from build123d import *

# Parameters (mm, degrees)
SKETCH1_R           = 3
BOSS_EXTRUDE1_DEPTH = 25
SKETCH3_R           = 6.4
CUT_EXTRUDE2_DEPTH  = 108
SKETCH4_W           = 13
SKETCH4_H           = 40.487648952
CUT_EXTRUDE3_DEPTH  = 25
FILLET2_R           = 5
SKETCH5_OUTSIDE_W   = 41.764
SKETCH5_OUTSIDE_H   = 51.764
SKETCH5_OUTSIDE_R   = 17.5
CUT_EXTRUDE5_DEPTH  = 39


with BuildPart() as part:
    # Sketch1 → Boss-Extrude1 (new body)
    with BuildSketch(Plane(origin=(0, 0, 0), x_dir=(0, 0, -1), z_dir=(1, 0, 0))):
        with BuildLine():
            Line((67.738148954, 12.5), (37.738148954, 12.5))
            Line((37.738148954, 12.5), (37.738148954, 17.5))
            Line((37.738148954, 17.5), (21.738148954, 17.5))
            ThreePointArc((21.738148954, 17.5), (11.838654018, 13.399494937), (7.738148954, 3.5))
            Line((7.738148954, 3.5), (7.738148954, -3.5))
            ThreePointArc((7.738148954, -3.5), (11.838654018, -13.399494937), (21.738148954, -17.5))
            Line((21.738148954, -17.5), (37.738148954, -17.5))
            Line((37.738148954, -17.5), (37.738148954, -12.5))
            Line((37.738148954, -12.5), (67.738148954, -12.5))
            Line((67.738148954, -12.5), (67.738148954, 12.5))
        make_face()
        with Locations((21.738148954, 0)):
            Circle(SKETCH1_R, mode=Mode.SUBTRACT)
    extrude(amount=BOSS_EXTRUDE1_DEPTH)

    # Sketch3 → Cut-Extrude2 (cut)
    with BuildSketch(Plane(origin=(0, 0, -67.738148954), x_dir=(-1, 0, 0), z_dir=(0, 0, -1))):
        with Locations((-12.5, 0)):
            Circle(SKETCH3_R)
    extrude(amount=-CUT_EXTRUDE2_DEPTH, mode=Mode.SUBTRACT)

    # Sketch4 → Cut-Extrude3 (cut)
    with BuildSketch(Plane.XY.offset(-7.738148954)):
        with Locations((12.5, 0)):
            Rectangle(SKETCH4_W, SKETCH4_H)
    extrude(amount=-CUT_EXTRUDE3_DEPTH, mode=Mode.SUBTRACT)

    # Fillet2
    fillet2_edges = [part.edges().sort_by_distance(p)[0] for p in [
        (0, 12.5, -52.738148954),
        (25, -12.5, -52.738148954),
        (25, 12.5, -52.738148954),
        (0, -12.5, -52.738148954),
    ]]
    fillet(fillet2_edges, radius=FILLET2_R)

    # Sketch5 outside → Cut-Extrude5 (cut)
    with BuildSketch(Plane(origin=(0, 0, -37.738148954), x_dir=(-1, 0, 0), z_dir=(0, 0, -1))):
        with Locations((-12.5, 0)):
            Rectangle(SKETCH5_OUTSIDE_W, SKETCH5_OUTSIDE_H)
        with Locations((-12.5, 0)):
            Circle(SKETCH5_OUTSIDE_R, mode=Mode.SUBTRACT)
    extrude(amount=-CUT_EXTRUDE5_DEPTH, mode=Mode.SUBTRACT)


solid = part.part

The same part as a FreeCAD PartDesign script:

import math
import FreeCAD as App
import Part
import Sketcher
from FreeCAD import Vector
Q = App.Units.Quantity


def edges_at(feature, points):
    """Names of the edges that pass closest to the given points."""
    edges = feature.Shape.Edges
    near = lambda p: min(range(len(edges)), key=lambda i: edges[i].distToShape(Part.Vertex(*p))[0])
    return sorted({f"Edge{near(p) + 1}" for p in points})


def add_polygon(sketch, points):
    """Adds a closed chain of lines whose ends are joined by coincident constraints."""
    first, n = sketch.GeometryCount, len(points)
    for a, b in zip(points, points[1:] + points[:1]):
        sketch.addGeometry(Part.LineSegment(App.Vector(*a, 0), App.Vector(*b, 0)), False)
    for i in range(n):
        sketch.addConstraint(Sketcher.Constraint("Coincident", first + i, 2, first + (i + 1) % n, 1))

doc = App.newDocument("Part")
body = doc.addObject("PartDesign::Body", "Body")

sketch1 = body.newObject("Sketcher::SketchObject", "Sketch")
sketch1.AttachmentSupport = (doc.getObject("YZ_Plane"), [""])
sketch1.MapMode = "FlatFace"
sketch1.addGeometry([
    Part.LineSegment(Vector(12.5, -67.7, 0), Vector(12.5, -37.7, 0)),
    Part.LineSegment(Vector(12.5, -37.7, 0), Vector(17.5, -37.7, 0)),
    Part.LineSegment(Vector(17.5, -37.7, 0), Vector(17.5, -21.7, 0)),
    Part.ArcOfCircle(Part.Circle(Vector(3.5, -21.7, 0), Vector(0, 0, 1), 14), math.radians(0), math.radians(90)),
    Part.LineSegment(Vector(3.5, -7.7, 0), Vector(-3.5, -7.7, 0)),
    Part.ArcOfCircle(Part.Circle(Vector(-3.5, -21.7, 0), Vector(0, 0, 1), 14), math.radians(90), math.radians(180)),
    Part.LineSegment(Vector(-17.5, -21.7, 0), Vector(-17.5, -37.7, 0)),
    Part.LineSegment(Vector(-17.5, -37.7, 0), Vector(-12.5, -37.7, 0)),
    Part.LineSegment(Vector(-12.5, -37.7, 0), Vector(-12.5, -67.7, 0)),
    Part.LineSegment(Vector(-12.5, -67.7, 0), Vector(12.5, -67.7, 0)),
    Part.Circle(Vector(0, -21.7, 0), Vector(0, 0, 1), 3),
], False)
sketch1.addConstraint([
    Sketcher.Constraint("Coincident", 0, 2, 1, 1),
    Sketcher.Constraint("Coincident", 1, 2, 2, 1),
    Sketcher.Constraint("Tangent", 2, 2, 3, 1),
    Sketcher.Constraint("Tangent", 3, 2, 4, 1),
    Sketcher.Constraint("Tangent", 4, 2, 5, 1),
    Sketcher.Constraint("Tangent", 5, 2, 6, 1),
    Sketcher.Constraint("Coincident", 6, 2, 7, 1),
    Sketcher.Constraint("Coincident", 7, 2, 8, 1),
    Sketcher.Constraint("Coincident", 8, 2, 9, 1),
    Sketcher.Constraint("Coincident", 9, 2, 0, 1),
    Sketcher.Constraint("Vertical", 0),
    Sketcher.Constraint("Horizontal", 1),
    Sketcher.Constraint("Vertical", 2),
    Sketcher.Constraint("Horizontal", 4),
    Sketcher.Constraint("Vertical", 6),
    Sketcher.Constraint("Horizontal", 7),
    Sketcher.Constraint("Vertical", 8),
    Sketcher.Constraint("Horizontal", 9),
    Sketcher.Constraint("Equal", 3, 5),
    Sketcher.Constraint("Symmetric", 1, 2, 6, 2, -2),
    Sketcher.Constraint("PointOnObject", 10, 3, -2),
    Sketcher.Constraint("Horizontal", 5, 3, 10, 3),
    Sketcher.Constraint("Equal", 1, 7),
    Sketcher.Constraint("Diameter", 10, Q("6 mm")),
    Sketcher.Constraint("Radius", 3, Q("14 mm")),
    Sketcher.Constraint("DistanceX", 1, 1, 1, 2, Q("5 mm")),
    Sketcher.Constraint("DistanceX", 4, 2, 4, 1, Q("7 mm")),
    Sketcher.Constraint("DistanceY", 0, 1, 0, 2, Q("30 mm")),
    Sketcher.Constraint("DistanceY", 2, 1, 2, 2, Q("16 mm")),
    Sketcher.Constraint("DistanceY", 3, 3, -1, 1, Q("21.738149 mm")),
])
pad1 = body.newObject("PartDesign::Pad", "Pad")
pad1.Profile = sketch1
pad1.Length = 25

sketch2 = body.newObject("Sketcher::SketchObject", "Sketch001")
sketch2.AttachmentSupport = (doc.getObject("XY_Plane"), [""])
sketch2.MapMode = "FlatFace"
sketch2.AttachmentOffset = App.Placement(Vector(0, 0, -67.738149), App.Rotation())
sketch2.addGeometry(Part.Circle(Vector(12, 0, 0), Vector(0, 0, 1), 6), False)
sketch2.addConstraint([
    Sketcher.Constraint("PointOnObject", 0, 3, -1),
    Sketcher.Constraint("Diameter", 0, Q("12.8 mm")),
    Sketcher.Constraint("DistanceX", -1, 1, 0, 3, Q("12.5 mm")),
])
pocket1 = body.newObject("PartDesign::Pocket", "Pocket")
pocket1.Profile = sketch2
pocket1.Length = 108
pocket1.Reversed = True

sketch3 = body.newObject("Sketcher::SketchObject", "Sketch002")
sketch3.AttachmentSupport = (doc.getObject("XY_Plane"), [""])
sketch3.MapMode = "FlatFace"
sketch3.AttachmentOffset = App.Placement(Vector(0, 0, -7.738149), App.Rotation())
add_polygon(sketch3, [(6, 20), (6, -20), (19, -20), (19, 20)])
sketch3.addConstraint([
    Sketcher.Constraint("Vertical", 0),
    Sketcher.Constraint("Horizontal", 1),
    Sketcher.Constraint("Vertical", 2),
    Sketcher.Constraint("Horizontal", 3),
    Sketcher.Constraint("DistanceX", 1, 1, 1, 2, Q("13 mm")),
    Sketcher.Constraint("DistanceX", -1, 1, 0, 2, Q("6 mm")),
    Sketcher.Constraint("DistanceY", 0, 2, 0, 1, Q("40.487649 mm")),
    Sketcher.Constraint("DistanceY", 0, 2, -1, 1, Q("20.243824 mm")),
])
pocket2 = body.newObject("PartDesign::Pocket", "Pocket001")
pocket2.Profile = sketch3
pocket2.Length = 25
doc.recompute()

fillet = body.newObject("PartDesign::Fillet", "Fillet")
fillet.Base = (pocket2, edges_at(pocket2, [
    (0, 12.5, -52.738),
    (25, -12.5, -52.738),
    (25, 12.5, -52.738),
    (0, -12.5, -52.738),
]))
fillet.Radius = 5

sketch4 = body.newObject("Sketcher::SketchObject", "Sketch003")
sketch4.AttachmentSupport = (doc.getObject("XY_Plane"), [""])
sketch4.MapMode = "FlatFace"
sketch4.AttachmentOffset = App.Placement(Vector(0, 0, -37.738149), App.Rotation())
add_polygon(sketch4, [(33, 26), (33, -26), (-8, -26), (-8, 26)])
sketch4.addGeometry(Part.Circle(Vector(12, 0, 0), Vector(0, 0, 1), 18), False)
sketch4.addConstraint([
    Sketcher.Constraint("Vertical", 0),
    Sketcher.Constraint("Horizontal", 1),
    Sketcher.Constraint("Vertical", 2),
    Sketcher.Constraint("Horizontal", 3),
    Sketcher.Constraint("PointOnObject", 4, 3, -1),
    Sketcher.Constraint("Diameter", 4, Q("35 mm")),
    Sketcher.Constraint("DistanceX", -1, 1, 4, 3, Q("12.5 mm")),
    Sketcher.Constraint("DistanceX", 1, 2, 1, 1, Q("41.764 mm")),
    Sketcher.Constraint("DistanceY", 0, 2, 0, 1, Q("51.764 mm")),
    Sketcher.Constraint("DistanceX", -1, 1, 0, 2, Q("33.382 mm")),
    Sketcher.Constraint("DistanceY", 0, 2, -1, 1, Q("25.882 mm")),
])
pocket3 = body.newObject("PartDesign::Pocket", "Pocket002")
pocket3.Profile = sketch4
pocket3.Length = 39
pocket3.Reversed = True

doc.recompute()
